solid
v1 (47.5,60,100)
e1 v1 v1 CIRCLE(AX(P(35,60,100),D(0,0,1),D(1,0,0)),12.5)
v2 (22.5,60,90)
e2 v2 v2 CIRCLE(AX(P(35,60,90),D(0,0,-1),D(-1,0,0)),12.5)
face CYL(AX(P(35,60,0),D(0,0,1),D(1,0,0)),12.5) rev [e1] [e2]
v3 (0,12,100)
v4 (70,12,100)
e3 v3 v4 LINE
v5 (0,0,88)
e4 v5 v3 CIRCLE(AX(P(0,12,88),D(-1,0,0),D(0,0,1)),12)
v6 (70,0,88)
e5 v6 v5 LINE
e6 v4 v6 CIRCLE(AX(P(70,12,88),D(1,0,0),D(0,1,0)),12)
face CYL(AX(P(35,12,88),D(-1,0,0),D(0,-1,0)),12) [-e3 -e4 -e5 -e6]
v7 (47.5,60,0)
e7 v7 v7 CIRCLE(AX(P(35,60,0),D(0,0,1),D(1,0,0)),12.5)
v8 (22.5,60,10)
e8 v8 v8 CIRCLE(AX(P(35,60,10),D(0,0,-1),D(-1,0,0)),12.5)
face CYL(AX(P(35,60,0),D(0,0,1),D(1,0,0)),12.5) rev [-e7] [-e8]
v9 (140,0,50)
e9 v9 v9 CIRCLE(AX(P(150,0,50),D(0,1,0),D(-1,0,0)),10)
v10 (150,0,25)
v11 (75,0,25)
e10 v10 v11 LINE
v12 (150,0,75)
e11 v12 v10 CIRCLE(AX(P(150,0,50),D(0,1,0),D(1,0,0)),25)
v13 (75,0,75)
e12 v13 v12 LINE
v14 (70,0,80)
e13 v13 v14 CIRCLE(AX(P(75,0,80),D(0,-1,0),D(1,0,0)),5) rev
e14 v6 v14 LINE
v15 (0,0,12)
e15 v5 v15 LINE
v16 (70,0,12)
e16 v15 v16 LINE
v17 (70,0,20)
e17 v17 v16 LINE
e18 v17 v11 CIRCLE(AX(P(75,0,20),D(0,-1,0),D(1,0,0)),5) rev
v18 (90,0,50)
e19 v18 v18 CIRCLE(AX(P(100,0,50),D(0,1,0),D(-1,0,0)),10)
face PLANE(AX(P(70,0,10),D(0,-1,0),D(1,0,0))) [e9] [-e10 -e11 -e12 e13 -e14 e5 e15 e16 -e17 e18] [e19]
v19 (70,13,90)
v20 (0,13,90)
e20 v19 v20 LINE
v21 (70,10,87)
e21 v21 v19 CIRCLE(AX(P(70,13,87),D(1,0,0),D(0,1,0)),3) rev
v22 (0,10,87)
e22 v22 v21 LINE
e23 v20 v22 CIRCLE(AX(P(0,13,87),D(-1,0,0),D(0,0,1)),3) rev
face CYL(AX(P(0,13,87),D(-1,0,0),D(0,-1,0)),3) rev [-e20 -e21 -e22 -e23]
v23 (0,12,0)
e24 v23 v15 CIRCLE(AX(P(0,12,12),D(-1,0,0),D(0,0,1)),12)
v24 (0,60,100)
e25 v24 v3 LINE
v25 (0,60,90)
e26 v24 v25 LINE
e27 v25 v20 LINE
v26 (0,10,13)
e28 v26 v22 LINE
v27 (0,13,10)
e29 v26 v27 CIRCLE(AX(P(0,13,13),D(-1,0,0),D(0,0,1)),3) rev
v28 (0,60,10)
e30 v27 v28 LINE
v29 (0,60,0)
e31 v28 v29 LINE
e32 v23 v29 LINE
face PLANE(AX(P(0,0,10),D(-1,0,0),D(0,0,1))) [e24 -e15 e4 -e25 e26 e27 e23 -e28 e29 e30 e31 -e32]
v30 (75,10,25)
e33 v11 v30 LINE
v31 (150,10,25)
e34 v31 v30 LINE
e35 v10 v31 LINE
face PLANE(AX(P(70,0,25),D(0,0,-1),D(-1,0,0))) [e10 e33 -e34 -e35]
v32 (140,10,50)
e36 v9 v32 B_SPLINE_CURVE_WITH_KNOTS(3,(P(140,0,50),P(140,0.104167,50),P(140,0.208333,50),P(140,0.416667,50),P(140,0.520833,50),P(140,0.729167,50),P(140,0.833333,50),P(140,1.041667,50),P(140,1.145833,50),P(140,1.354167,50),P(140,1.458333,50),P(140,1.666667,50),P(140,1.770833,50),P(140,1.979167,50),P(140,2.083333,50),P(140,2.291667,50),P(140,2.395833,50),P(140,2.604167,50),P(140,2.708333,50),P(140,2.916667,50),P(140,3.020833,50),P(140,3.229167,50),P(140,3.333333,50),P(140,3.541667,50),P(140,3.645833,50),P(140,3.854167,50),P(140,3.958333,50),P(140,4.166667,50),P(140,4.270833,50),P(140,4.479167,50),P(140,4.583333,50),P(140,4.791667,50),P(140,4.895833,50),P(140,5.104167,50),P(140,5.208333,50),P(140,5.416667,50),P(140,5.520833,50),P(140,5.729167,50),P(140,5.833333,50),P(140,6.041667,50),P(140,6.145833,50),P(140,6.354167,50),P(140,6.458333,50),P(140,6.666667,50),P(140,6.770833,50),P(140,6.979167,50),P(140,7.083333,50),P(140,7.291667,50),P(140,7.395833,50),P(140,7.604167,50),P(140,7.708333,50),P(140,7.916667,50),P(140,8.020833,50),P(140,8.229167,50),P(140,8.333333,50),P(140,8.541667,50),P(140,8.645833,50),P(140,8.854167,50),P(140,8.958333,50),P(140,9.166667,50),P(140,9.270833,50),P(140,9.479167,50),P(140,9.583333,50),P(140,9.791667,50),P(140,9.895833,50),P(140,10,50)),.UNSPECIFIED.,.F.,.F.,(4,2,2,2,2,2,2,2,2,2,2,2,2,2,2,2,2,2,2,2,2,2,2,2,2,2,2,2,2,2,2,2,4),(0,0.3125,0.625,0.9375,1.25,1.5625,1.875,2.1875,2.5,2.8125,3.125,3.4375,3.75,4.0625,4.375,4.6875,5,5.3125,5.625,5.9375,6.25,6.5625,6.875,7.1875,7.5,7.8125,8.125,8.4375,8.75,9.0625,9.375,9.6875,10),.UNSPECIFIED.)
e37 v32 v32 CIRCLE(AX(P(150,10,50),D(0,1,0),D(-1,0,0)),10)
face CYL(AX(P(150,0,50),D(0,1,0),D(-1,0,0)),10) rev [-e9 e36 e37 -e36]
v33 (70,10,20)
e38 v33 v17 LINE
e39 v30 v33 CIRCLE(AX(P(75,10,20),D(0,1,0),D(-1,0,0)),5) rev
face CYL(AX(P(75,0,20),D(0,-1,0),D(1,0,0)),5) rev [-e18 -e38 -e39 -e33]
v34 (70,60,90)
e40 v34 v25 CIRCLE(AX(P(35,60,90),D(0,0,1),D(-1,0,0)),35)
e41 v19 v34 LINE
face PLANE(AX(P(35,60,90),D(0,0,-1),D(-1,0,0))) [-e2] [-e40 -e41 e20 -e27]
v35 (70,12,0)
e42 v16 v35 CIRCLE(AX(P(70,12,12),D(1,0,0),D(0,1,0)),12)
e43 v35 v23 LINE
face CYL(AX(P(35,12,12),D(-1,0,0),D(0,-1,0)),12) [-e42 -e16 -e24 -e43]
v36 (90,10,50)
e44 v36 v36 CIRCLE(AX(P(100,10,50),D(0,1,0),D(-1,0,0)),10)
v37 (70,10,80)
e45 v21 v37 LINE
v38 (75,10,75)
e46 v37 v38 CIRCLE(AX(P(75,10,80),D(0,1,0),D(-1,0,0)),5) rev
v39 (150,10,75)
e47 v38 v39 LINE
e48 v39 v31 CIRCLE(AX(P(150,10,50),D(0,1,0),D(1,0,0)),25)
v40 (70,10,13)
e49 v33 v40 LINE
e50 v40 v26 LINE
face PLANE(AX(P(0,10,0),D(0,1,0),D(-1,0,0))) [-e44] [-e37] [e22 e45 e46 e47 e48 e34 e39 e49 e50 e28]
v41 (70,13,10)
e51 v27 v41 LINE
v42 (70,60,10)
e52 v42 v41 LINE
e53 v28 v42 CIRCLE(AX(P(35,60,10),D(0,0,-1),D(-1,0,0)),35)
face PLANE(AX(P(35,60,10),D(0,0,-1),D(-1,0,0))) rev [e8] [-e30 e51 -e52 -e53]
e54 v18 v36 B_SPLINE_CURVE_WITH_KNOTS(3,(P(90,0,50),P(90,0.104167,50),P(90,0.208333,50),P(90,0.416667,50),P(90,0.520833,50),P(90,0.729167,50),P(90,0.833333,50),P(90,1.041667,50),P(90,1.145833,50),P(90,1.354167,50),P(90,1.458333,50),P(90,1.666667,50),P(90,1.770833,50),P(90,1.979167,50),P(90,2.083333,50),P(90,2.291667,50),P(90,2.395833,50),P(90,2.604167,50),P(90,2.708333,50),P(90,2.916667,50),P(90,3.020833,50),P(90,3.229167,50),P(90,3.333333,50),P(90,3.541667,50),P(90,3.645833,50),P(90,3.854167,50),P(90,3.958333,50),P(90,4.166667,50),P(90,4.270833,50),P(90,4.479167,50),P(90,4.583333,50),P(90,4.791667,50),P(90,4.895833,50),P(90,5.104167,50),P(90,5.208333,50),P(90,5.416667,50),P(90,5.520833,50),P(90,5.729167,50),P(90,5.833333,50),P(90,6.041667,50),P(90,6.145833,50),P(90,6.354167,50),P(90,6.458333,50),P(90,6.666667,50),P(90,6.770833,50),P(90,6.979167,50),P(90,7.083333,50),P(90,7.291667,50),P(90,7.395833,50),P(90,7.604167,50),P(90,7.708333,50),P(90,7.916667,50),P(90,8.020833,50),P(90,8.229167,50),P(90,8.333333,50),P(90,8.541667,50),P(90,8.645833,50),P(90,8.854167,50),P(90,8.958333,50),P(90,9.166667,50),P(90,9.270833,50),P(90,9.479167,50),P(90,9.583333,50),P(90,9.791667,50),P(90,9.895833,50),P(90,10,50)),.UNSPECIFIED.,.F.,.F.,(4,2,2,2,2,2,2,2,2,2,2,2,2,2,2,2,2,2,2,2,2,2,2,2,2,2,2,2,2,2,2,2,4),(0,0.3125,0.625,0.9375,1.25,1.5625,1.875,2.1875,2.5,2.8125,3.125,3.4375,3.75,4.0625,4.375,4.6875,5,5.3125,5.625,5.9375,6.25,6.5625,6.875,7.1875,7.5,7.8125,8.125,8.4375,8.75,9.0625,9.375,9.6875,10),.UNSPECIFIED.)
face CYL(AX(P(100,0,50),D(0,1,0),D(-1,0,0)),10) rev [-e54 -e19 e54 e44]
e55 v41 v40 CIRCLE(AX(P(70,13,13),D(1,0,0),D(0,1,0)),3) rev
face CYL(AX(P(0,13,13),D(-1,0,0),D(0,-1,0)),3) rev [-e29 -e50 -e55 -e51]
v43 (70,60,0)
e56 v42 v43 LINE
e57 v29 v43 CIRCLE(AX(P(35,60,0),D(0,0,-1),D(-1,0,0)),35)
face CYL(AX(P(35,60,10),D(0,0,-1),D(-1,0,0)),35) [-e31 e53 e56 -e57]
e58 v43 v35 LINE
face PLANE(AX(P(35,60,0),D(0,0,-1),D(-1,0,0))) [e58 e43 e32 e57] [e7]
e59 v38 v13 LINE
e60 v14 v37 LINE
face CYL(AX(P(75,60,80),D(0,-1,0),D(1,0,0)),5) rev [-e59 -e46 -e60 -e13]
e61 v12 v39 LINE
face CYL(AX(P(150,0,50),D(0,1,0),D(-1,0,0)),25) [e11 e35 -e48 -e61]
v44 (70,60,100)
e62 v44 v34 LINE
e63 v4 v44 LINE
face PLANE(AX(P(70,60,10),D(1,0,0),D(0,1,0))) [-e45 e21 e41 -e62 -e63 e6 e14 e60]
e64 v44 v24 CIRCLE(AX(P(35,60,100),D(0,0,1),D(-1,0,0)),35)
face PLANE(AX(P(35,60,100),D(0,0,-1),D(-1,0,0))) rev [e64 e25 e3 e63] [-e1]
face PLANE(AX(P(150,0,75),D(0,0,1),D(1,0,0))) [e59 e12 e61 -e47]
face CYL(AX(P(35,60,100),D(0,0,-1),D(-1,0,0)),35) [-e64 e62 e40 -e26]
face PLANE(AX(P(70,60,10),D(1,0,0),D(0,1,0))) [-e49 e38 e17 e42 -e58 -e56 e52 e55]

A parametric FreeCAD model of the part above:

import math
import FreeCAD as App
import Part
import Sketcher

V = App.Vector


def edges_at(feature, points):
    """Names of the edges that pass closest to the given points."""
    edges = feature.Shape.Edges
    near = lambda p: min(range(len(edges)), key=lambda i: edges[i].distToShape(Part.Vertex(*p))[0])
    return sorted({f"Edge{near(p) + 1}" for p in points})

doc = App.newDocument("Part")
body = doc.addObject("PartDesign::Body", "Body")

# Sketch on XY plane
sketch1 = body.newObject("Sketcher::SketchObject", "Sketch")
sketch1.AttachmentSupport = (doc.getObject("XY_Plane"), [""])
sketch1.MapMode = "FlatFace"
sketch1.addGeometry([
    Part.LineSegment(V(0, 60, 0), V(0, 0, 0)),
    Part.LineSegment(V(0, 0, 0), V(70, 0, 0)),
    Part.LineSegment(V(70, 0, 0), V(70, 60, 0)),
    Part.ArcOfCircle(Part.Circle(V(35, 60, 0), V(0, 0, 1), 35), math.radians(0), math.radians(180)),
], False)
sketch1.addConstraint([
    Sketcher.Constraint("Coincident", 0, 2, 1, 1),
    Sketcher.Constraint("Coincident", 1, 2, 2, 1),
    Sketcher.Constraint("Tangent", 2, 2, 3, 1),
    Sketcher.Constraint("Tangent", 3, 2, 0, 1),
    Sketcher.Constraint("Vertical", 0),
    Sketcher.Constraint("Horizontal", 1),
    Sketcher.Constraint("Vertical", 2),
    Sketcher.Constraint("Coincident", 0, 2, -1, 1),
    Sketcher.Constraint("Radius", 3, 35.0),
    Sketcher.Constraint("DistanceY", 0, 2, 0, 1, 60.0),
])
pad1 = body.newObject("PartDesign::Pad", "Pad")
pad1.Profile = sketch1
pad1.Length = 10

# Sketch on XZ plane
sketch2 = body.newObject("Sketcher::SketchObject", "Sketch001")
sketch2.AttachmentSupport = (doc.getObject("XZ_Plane"), [""])
sketch2.MapMode = "FlatFace"
sketch2.addGeometry([
    Part.LineSegment(V(70, 10, 0), V(70, 90, 0)),
    Part.LineSegment(V(70, 90, 0), V(0, 90, 0)),
    Part.LineSegment(V(0, 90, 0), V(0, 10, 0)),
    Part.LineSegment(V(0, 10, 0), V(70, 10, 0)),
], False)
sketch2.addConstraint([
    Sketcher.Constraint("Coincident", 0, 2, 1, 1),
    Sketcher.Constraint("Coincident", 1, 2, 2, 1),
    Sketcher.Constraint("Coincident", 2, 2, 3, 1),
    Sketcher.Constraint("Coincident", 3, 2, 0, 1),
    Sketcher.Constraint("Vertical", 0),
    Sketcher.Constraint("Horizontal", 1),
    Sketcher.Constraint("Vertical", 2),
    Sketcher.Constraint("Horizontal", 3),
    Sketcher.Constraint("PointOnObject", 1, 2, -2),
    Sketcher.Constraint("DistanceX", 1, 2, 1, 1, 70.0),
    Sketcher.Constraint("DistanceY", 0, 1, 0, 2, 80.0),
    Sketcher.Constraint("DistanceY", -1, 1, 0, 2, 90.0),
])
pad2 = body.newObject("PartDesign::Pad", "Pad001")
pad2.Profile = sketch2
pad2.Length = 10
pad2.Reversed = True

# Sketch on XY plane
sketch3 = body.newObject("Sketcher::SketchObject", "Sketch002")
sketch3.AttachmentSupport = (doc.getObject("XY_Plane"), [""])
sketch3.MapMode = "FlatFace"
sketch3.AttachmentOffset = App.Placement(V(0, 0, 90), App.Rotation())
sketch3.addGeometry([
    Part.LineSegment(V(0, 60, 0), V(0, 0, 0)),
    Part.LineSegment(V(0, 0, 0), V(70, 0, 0)),
    Part.LineSegment(V(70, 0, 0), V(70, 60, 0)),
    Part.ArcOfCircle(Part.Circle(V(35, 60, 0), V(0, 0, 1), 35), math.radians(0), math.radians(180)),
], False)
sketch3.addConstraint([
    Sketcher.Constraint("Coincident", 0, 2, 1, 1),
    Sketcher.Constraint("Coincident", 1, 2, 2, 1),
    Sketcher.Constraint("Tangent", 2, 2, 3, 1),
    Sketcher.Constraint("Tangent", 3, 2, 0, 1),
    Sketcher.Constraint("Vertical", 0),
    Sketcher.Constraint("Horizontal", 1),
    Sketcher.Constraint("Vertical", 2),
    Sketcher.Constraint("Coincident", 0, 2, -1, 1),
    Sketcher.Constraint("Radius", 3, 35.0),
    Sketcher.Constraint("DistanceY", 0, 2, 0, 1, 60.0),
])
pad3 = body.newObject("PartDesign::Pad", "Pad002")
pad3.Profile = sketch3
pad3.Length = 10

# Sketch on XY plane
sketch4 = body.newObject("Sketcher::SketchObject", "Sketch003")
sketch4.AttachmentSupport = (doc.getObject("XY_Plane"), [""])
sketch4.MapMode = "FlatFace"
sketch4.AttachmentOffset = App.Placement(V(0, 0, 100), App.Rotation())
sketch4.addGeometry(Part.Circle(V(35, 60, 0), V(0, 0, 1), 12.5), False)
sketch4.addConstraint([
    Sketcher.Constraint("Diameter", 0, 25.0),
    Sketcher.Constraint("DistanceX", -1, 1, 0, 3, 35.0),
    Sketcher.Constraint("DistanceY", -1, 1, 0, 3, 60.0),
])
pocket1 = body.newObject("PartDesign::Pocket", "Pocket")
pocket1.Profile = sketch4
pocket1.Type = "ThroughAll"

# Sketch on XZ plane
sketch5 = body.newObject("Sketcher::SketchObject", "Sketch004")
sketch5.AttachmentSupport = (doc.getObject("XZ_Plane"), [""])
sketch5.MapMode = "FlatFace"
sketch5.AttachmentOffset = App.Placement(V(0, 0, -10), App.Rotation())
sketch5.addGeometry([
    Part.LineSegment(V(150, 25, 0), V(70, 25, 0)),
    Part.LineSegment(V(70, 25, 0), V(70, 75, 0)),
    Part.LineSegment(V(70, 75, 0), V(150, 75, 0)),
    Part.ArcOfCircle(Part.Circle(V(150, 50, 0), V(0, 0, 1), 25), math.radians(-90), math.radians(90)),
], False)
sketch5.addConstraint([
    Sketcher.Constraint("Coincident", 0, 2, 1, 1),
    Sketcher.Constraint("Coincident", 1, 2, 2, 1),
    Sketcher.Constraint("Tangent", 2, 2, 3, 2),
    Sketcher.Constraint("Tangent", 3, 1, 0, 1),
    Sketcher.Constraint("Horizontal", 0),
    Sketcher.Constraint("Vertical", 1),
    Sketcher.Constraint("Horizontal", 2),
    Sketcher.Constraint("Radius", 3, 25.0),
    Sketcher.Constraint("DistanceX", 0, 2, 0, 1, 80.0),
    Sketcher.Constraint("DistanceX", -1, 1, 3, 3, 150.0),
    Sketcher.Constraint("DistanceY", -1, 1, 3, 3, 50.0),
])
pad4 = body.newObject("PartDesign::Pad", "Pad003")
pad4.Profile = sketch5
pad4.Length = 10

# Sketch on XZ plane
sketch6 = body.newObject("Sketcher::SketchObject", "Sketch005")
sketch6.AttachmentSupport = (doc.getObject("XZ_Plane"), [""])
sketch6.MapMode = "FlatFace"
sketch6.AttachmentOffset = App.Placement(V(0, 0, -10), App.Rotation())
sketch6.addGeometry([
    Part.Circle(V(150, 50, 0), V(0, 0, 1), 10),
    Part.Circle(V(100, 50, 0), V(0, 0, 1), 10),
], False)
sketch6.addConstraint([
    Sketcher.Constraint("Equal", 0, 1),
    Sketcher.Constraint("Horizontal", 0, 3, 1, 3),
    Sketcher.Constraint("Diameter", 0, 20.0),
    Sketcher.Constraint("DistanceX", -1, 1, 0, 3, 150.0),
    Sketcher.Constraint("DistanceY", -1, 1, 0, 3, 50.0),
    Sketcher.Constraint("DistanceX", -1, 1, 1, 3, 100.0),
])
pocket2 = body.newObject("PartDesign::Pocket", "Pocket001")
pocket2.Profile = sketch6
pocket2.Type = "ThroughAll"
pocket2.Reversed = True
doc.recompute()

fillet = body.newObject("PartDesign::Fillet", "Fillet")
fillet.Base = (pocket2, edges_at(pocket2, [(70, 5, 75), (70, 5, 25)]))
fillet.Radius = 5
doc.recompute()

fillet2 = body.newObject("PartDesign::Fillet", "Fillet001")
fillet2.Base = (fillet, edges_at(fillet, [(35, 0, 100)]))
fillet2.Radius = 12
doc.recompute()

fillet3 = body.newObject("PartDesign::Fillet", "Fillet002")
fillet3.Base = (fillet2, edges_at(fillet2, [(35, 0, 0)]))
fillet3.Radius = 12
doc.recompute()

fillet4 = body.newObject("PartDesign::Fillet", "Fillet003")
fillet4.Base = (fillet3, edges_at(fillet3, [(35, 10, 10)]))
fillet4.Radius = 3
doc.recompute()

fillet5 = body.newObject("PartDesign::Fillet", "Fillet004")
fillet5.Base = (fillet4, edges_at(fillet4, [(35, 10, 90)]))
fillet5.Radius = 3

doc.recompute()
